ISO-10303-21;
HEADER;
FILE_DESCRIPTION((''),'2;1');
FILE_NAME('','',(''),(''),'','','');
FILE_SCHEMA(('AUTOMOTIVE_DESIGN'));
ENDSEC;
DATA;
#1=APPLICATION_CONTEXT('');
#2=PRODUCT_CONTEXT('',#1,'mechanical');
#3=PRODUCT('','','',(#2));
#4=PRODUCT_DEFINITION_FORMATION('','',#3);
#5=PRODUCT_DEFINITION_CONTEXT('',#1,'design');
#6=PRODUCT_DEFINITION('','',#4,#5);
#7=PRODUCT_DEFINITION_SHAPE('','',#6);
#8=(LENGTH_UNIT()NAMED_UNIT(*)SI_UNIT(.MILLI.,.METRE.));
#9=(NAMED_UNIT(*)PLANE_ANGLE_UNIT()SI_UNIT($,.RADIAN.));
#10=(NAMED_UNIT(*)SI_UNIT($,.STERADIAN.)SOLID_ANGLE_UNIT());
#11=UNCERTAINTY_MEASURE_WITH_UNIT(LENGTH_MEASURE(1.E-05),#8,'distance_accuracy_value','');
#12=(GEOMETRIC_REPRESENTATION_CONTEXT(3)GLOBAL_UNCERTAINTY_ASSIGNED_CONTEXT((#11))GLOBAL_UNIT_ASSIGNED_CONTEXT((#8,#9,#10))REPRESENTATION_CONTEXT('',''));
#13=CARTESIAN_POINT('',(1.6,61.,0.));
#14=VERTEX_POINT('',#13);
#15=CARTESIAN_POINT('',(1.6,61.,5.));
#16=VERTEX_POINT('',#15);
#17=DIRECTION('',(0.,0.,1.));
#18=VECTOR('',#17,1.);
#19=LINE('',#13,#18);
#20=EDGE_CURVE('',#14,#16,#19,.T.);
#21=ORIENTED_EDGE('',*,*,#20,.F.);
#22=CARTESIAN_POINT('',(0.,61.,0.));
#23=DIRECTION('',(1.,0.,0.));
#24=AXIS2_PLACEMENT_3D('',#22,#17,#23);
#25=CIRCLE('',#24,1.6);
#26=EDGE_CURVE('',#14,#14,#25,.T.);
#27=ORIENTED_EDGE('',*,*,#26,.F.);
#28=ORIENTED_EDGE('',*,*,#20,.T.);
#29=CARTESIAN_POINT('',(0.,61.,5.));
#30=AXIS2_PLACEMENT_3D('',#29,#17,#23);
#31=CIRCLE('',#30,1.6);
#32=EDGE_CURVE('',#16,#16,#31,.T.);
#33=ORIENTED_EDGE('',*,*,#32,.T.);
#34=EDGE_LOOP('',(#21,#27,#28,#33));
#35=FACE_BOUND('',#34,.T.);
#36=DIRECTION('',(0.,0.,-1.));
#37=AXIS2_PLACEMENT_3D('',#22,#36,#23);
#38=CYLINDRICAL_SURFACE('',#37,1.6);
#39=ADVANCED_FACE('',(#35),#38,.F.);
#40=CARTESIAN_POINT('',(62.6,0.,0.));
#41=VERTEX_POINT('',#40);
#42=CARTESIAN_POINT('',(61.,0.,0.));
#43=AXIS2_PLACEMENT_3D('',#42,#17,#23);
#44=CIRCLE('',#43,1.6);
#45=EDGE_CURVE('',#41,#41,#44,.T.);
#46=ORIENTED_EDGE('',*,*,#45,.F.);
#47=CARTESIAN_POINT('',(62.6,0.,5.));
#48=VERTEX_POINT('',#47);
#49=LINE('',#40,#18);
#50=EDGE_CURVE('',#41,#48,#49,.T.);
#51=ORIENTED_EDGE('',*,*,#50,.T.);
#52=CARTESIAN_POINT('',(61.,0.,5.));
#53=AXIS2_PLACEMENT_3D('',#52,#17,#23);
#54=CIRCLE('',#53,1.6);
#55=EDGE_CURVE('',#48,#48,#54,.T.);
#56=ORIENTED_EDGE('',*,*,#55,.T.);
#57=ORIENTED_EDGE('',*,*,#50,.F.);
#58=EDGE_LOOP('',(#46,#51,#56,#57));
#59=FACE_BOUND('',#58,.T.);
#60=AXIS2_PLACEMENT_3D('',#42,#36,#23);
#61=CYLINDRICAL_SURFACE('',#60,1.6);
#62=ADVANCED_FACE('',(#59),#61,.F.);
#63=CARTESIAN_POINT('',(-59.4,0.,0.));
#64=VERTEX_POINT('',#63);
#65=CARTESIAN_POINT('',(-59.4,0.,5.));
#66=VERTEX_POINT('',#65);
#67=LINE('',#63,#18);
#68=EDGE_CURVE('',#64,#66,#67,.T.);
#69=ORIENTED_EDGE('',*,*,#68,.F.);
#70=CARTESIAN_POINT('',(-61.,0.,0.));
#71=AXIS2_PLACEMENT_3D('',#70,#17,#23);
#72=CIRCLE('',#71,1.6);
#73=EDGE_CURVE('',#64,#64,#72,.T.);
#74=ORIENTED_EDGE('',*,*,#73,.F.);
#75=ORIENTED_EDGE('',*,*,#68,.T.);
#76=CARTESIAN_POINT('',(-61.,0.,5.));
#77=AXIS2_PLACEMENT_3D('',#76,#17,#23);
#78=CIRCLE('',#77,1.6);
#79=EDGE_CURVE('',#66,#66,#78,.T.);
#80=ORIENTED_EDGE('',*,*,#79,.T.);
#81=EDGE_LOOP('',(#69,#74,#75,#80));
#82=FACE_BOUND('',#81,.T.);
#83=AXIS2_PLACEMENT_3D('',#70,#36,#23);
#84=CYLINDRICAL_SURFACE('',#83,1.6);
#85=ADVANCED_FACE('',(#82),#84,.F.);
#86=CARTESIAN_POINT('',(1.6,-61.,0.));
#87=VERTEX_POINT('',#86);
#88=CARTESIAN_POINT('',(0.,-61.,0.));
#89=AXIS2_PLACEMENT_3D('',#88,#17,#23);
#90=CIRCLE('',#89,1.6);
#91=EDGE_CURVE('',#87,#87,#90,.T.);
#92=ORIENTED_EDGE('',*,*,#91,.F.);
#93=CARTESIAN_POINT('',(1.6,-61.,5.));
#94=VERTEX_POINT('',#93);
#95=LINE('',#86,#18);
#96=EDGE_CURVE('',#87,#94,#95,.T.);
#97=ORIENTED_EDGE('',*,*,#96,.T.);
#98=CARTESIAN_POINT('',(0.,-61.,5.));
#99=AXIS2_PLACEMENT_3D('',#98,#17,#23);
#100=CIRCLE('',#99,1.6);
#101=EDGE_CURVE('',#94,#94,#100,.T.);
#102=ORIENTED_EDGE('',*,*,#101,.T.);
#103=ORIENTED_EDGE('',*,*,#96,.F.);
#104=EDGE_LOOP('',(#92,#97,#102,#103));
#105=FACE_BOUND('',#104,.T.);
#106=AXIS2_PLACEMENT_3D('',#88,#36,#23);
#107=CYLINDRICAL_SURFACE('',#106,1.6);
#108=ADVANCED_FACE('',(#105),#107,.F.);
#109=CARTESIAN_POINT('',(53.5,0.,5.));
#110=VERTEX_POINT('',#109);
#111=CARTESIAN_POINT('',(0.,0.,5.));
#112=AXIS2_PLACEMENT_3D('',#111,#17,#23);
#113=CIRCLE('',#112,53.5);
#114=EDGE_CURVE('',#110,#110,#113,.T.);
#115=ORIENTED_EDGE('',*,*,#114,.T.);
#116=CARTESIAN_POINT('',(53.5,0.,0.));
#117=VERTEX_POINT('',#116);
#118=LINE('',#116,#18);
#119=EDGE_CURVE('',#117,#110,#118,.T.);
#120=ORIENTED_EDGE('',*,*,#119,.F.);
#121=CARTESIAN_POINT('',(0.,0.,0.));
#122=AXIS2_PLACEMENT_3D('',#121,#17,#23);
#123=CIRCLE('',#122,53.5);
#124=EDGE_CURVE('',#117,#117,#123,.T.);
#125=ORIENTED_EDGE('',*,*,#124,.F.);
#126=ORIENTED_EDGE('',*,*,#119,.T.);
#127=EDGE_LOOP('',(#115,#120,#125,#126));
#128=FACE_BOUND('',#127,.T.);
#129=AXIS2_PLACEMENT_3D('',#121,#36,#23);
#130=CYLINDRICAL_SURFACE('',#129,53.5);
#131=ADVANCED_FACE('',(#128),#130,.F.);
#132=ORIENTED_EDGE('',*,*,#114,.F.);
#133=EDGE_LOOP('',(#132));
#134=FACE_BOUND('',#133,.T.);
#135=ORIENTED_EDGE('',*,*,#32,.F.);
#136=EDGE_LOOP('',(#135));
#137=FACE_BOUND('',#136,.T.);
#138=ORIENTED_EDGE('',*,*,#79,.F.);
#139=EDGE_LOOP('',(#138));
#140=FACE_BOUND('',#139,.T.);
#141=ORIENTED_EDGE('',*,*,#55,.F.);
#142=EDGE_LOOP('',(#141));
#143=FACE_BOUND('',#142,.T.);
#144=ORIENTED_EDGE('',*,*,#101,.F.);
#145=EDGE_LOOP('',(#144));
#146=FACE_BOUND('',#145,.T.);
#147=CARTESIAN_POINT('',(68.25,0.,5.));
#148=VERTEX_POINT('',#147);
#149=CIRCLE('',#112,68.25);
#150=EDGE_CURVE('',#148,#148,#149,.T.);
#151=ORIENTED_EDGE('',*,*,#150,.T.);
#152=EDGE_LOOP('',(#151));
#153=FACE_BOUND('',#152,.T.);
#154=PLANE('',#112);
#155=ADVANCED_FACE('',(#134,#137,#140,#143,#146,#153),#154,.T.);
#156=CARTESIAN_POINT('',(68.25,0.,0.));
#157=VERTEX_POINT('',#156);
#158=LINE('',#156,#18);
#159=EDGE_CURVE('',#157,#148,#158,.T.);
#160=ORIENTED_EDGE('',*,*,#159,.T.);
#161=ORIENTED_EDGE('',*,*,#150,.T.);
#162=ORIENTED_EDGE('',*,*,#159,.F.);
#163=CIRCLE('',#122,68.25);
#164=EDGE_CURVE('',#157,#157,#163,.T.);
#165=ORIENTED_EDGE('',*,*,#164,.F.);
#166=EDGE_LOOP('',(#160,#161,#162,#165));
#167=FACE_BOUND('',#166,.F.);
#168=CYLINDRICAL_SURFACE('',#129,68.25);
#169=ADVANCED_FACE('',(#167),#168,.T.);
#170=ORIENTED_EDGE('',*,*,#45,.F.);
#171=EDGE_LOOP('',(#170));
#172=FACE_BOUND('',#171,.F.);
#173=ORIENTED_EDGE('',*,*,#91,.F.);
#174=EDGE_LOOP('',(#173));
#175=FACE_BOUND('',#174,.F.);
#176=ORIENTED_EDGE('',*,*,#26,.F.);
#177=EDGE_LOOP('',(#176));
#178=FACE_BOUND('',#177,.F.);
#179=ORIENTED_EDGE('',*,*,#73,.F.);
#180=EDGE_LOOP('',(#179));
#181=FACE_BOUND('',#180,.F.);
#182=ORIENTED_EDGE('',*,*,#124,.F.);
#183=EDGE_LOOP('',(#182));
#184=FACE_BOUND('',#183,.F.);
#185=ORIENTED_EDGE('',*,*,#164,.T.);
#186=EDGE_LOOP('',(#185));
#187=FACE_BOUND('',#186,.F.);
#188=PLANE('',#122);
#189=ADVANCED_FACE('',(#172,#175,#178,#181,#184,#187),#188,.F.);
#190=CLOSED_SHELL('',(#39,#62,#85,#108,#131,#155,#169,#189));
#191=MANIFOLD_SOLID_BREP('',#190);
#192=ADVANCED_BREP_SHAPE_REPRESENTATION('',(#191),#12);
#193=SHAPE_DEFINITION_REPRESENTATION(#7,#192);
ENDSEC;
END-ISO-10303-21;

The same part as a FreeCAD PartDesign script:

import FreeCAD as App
import Part
import Sketcher
Q = App.Units.Quantity

doc = App.newDocument("Part")
params = doc.addObject("Spreadsheet::Sheet", "Params")
for row, (alias, value) in enumerate([
    ("sketch1_diameter", "107 mm"),
    ("sketch1_diameter2", "136.5 mm"),
    ("sketch1_diameter3", "3.2 mm"),
    ("pad1_length", "5 mm"),
], start=1):
    params.set(f"A{row}", alias)
    params.set(f"B{row}", "=" + value)
    params.setAlias(f"B{row}", alias)

body = doc.addObject("PartDesign::Body", "Body")

sketch1 = body.newObject("Sketcher::SketchObject", "Sketch")
sketch1.AttachmentSupport = (doc.getObject("XY_Plane"), [""])
sketch1.MapMode = "FlatFace"
sketch1.addGeometry(Part.Circle(App.Vector(0, 0, 0), App.Vector(0, 0, 1), 68.2), False)
sketch1.addGeometry(Part.Circle(App.Vector(0, -61, 0), App.Vector(0, 0, 1), 1.6), False)
sketch1.addGeometry(Part.Circle(App.Vector(-61, 0, 0), App.Vector(0, 0, 1), 1.6), False)
sketch1.addGeometry(Part.Circle(App.Vector(0, 0, 0), App.Vector(0, 0, 1), 53.5), False)
sketch1.addGeometry(Part.Circle(App.Vector(61, 0, 0), App.Vector(0, 0, 1), 1.6), False)
sketch1.addGeometry(Part.Circle(App.Vector(0, 61, 0), App.Vector(0, 0, 1), 1.6), False)
sketch1.addConstraint(Sketcher.Constraint("Coincident", 0, 3, -1, 1))
sketch1.addConstraint(Sketcher.Constraint("Coincident", 3, 3, -1, 1))
sketch1.addConstraint(Sketcher.Constraint("Equal", 1, 2))
sketch1.addConstraint(Sketcher.Constraint("Equal", 2, 4))
sketch1.addConstraint(Sketcher.Constraint("Equal", 4, 5))
sketch1.addConstraint(Sketcher.Constraint("Symmetric", 2, 3, 4, 3, -1, 1))
sketch1.addConstraint(Sketcher.Constraint("Symmetric", 1, 3, 5, 3, -1, 1))
sketch1.addConstraint(Sketcher.Constraint("PointOnObject", 1, 3, -2))
sketch1.addConstraint(Sketcher.Constraint("PointOnObject", 2, 3, -1))
sketch1.addConstraint(Sketcher.Constraint("Diameter", 3, Q("107 mm")))
sketch1.addConstraint(Sketcher.Constraint("Diameter", 0, Q("136.5 mm")))
sketch1.addConstraint(Sketcher.Constraint("Diameter", 1, Q("3.2 mm")))
sketch1.addConstraint(Sketcher.Constraint("DistanceX", 2, 3, 4, 3, Q("122 mm")))
sketch1.addConstraint(Sketcher.Constraint("DistanceY", 1, 3, 5, 3, Q("122 mm")))
sketch1.setExpression("Constraints[9]", "Params.sketch1_diameter")
sketch1.setExpression("Constraints[10]", "Params.sketch1_diameter2")
sketch1.setExpression("Constraints[11]", "Params.sketch1_diameter3")
pad1 = body.newObject("PartDesign::Pad", "Pad")
pad1.Profile = sketch1
pad1.setExpression("Length", "Params.pad1_length")

doc.recompute()
